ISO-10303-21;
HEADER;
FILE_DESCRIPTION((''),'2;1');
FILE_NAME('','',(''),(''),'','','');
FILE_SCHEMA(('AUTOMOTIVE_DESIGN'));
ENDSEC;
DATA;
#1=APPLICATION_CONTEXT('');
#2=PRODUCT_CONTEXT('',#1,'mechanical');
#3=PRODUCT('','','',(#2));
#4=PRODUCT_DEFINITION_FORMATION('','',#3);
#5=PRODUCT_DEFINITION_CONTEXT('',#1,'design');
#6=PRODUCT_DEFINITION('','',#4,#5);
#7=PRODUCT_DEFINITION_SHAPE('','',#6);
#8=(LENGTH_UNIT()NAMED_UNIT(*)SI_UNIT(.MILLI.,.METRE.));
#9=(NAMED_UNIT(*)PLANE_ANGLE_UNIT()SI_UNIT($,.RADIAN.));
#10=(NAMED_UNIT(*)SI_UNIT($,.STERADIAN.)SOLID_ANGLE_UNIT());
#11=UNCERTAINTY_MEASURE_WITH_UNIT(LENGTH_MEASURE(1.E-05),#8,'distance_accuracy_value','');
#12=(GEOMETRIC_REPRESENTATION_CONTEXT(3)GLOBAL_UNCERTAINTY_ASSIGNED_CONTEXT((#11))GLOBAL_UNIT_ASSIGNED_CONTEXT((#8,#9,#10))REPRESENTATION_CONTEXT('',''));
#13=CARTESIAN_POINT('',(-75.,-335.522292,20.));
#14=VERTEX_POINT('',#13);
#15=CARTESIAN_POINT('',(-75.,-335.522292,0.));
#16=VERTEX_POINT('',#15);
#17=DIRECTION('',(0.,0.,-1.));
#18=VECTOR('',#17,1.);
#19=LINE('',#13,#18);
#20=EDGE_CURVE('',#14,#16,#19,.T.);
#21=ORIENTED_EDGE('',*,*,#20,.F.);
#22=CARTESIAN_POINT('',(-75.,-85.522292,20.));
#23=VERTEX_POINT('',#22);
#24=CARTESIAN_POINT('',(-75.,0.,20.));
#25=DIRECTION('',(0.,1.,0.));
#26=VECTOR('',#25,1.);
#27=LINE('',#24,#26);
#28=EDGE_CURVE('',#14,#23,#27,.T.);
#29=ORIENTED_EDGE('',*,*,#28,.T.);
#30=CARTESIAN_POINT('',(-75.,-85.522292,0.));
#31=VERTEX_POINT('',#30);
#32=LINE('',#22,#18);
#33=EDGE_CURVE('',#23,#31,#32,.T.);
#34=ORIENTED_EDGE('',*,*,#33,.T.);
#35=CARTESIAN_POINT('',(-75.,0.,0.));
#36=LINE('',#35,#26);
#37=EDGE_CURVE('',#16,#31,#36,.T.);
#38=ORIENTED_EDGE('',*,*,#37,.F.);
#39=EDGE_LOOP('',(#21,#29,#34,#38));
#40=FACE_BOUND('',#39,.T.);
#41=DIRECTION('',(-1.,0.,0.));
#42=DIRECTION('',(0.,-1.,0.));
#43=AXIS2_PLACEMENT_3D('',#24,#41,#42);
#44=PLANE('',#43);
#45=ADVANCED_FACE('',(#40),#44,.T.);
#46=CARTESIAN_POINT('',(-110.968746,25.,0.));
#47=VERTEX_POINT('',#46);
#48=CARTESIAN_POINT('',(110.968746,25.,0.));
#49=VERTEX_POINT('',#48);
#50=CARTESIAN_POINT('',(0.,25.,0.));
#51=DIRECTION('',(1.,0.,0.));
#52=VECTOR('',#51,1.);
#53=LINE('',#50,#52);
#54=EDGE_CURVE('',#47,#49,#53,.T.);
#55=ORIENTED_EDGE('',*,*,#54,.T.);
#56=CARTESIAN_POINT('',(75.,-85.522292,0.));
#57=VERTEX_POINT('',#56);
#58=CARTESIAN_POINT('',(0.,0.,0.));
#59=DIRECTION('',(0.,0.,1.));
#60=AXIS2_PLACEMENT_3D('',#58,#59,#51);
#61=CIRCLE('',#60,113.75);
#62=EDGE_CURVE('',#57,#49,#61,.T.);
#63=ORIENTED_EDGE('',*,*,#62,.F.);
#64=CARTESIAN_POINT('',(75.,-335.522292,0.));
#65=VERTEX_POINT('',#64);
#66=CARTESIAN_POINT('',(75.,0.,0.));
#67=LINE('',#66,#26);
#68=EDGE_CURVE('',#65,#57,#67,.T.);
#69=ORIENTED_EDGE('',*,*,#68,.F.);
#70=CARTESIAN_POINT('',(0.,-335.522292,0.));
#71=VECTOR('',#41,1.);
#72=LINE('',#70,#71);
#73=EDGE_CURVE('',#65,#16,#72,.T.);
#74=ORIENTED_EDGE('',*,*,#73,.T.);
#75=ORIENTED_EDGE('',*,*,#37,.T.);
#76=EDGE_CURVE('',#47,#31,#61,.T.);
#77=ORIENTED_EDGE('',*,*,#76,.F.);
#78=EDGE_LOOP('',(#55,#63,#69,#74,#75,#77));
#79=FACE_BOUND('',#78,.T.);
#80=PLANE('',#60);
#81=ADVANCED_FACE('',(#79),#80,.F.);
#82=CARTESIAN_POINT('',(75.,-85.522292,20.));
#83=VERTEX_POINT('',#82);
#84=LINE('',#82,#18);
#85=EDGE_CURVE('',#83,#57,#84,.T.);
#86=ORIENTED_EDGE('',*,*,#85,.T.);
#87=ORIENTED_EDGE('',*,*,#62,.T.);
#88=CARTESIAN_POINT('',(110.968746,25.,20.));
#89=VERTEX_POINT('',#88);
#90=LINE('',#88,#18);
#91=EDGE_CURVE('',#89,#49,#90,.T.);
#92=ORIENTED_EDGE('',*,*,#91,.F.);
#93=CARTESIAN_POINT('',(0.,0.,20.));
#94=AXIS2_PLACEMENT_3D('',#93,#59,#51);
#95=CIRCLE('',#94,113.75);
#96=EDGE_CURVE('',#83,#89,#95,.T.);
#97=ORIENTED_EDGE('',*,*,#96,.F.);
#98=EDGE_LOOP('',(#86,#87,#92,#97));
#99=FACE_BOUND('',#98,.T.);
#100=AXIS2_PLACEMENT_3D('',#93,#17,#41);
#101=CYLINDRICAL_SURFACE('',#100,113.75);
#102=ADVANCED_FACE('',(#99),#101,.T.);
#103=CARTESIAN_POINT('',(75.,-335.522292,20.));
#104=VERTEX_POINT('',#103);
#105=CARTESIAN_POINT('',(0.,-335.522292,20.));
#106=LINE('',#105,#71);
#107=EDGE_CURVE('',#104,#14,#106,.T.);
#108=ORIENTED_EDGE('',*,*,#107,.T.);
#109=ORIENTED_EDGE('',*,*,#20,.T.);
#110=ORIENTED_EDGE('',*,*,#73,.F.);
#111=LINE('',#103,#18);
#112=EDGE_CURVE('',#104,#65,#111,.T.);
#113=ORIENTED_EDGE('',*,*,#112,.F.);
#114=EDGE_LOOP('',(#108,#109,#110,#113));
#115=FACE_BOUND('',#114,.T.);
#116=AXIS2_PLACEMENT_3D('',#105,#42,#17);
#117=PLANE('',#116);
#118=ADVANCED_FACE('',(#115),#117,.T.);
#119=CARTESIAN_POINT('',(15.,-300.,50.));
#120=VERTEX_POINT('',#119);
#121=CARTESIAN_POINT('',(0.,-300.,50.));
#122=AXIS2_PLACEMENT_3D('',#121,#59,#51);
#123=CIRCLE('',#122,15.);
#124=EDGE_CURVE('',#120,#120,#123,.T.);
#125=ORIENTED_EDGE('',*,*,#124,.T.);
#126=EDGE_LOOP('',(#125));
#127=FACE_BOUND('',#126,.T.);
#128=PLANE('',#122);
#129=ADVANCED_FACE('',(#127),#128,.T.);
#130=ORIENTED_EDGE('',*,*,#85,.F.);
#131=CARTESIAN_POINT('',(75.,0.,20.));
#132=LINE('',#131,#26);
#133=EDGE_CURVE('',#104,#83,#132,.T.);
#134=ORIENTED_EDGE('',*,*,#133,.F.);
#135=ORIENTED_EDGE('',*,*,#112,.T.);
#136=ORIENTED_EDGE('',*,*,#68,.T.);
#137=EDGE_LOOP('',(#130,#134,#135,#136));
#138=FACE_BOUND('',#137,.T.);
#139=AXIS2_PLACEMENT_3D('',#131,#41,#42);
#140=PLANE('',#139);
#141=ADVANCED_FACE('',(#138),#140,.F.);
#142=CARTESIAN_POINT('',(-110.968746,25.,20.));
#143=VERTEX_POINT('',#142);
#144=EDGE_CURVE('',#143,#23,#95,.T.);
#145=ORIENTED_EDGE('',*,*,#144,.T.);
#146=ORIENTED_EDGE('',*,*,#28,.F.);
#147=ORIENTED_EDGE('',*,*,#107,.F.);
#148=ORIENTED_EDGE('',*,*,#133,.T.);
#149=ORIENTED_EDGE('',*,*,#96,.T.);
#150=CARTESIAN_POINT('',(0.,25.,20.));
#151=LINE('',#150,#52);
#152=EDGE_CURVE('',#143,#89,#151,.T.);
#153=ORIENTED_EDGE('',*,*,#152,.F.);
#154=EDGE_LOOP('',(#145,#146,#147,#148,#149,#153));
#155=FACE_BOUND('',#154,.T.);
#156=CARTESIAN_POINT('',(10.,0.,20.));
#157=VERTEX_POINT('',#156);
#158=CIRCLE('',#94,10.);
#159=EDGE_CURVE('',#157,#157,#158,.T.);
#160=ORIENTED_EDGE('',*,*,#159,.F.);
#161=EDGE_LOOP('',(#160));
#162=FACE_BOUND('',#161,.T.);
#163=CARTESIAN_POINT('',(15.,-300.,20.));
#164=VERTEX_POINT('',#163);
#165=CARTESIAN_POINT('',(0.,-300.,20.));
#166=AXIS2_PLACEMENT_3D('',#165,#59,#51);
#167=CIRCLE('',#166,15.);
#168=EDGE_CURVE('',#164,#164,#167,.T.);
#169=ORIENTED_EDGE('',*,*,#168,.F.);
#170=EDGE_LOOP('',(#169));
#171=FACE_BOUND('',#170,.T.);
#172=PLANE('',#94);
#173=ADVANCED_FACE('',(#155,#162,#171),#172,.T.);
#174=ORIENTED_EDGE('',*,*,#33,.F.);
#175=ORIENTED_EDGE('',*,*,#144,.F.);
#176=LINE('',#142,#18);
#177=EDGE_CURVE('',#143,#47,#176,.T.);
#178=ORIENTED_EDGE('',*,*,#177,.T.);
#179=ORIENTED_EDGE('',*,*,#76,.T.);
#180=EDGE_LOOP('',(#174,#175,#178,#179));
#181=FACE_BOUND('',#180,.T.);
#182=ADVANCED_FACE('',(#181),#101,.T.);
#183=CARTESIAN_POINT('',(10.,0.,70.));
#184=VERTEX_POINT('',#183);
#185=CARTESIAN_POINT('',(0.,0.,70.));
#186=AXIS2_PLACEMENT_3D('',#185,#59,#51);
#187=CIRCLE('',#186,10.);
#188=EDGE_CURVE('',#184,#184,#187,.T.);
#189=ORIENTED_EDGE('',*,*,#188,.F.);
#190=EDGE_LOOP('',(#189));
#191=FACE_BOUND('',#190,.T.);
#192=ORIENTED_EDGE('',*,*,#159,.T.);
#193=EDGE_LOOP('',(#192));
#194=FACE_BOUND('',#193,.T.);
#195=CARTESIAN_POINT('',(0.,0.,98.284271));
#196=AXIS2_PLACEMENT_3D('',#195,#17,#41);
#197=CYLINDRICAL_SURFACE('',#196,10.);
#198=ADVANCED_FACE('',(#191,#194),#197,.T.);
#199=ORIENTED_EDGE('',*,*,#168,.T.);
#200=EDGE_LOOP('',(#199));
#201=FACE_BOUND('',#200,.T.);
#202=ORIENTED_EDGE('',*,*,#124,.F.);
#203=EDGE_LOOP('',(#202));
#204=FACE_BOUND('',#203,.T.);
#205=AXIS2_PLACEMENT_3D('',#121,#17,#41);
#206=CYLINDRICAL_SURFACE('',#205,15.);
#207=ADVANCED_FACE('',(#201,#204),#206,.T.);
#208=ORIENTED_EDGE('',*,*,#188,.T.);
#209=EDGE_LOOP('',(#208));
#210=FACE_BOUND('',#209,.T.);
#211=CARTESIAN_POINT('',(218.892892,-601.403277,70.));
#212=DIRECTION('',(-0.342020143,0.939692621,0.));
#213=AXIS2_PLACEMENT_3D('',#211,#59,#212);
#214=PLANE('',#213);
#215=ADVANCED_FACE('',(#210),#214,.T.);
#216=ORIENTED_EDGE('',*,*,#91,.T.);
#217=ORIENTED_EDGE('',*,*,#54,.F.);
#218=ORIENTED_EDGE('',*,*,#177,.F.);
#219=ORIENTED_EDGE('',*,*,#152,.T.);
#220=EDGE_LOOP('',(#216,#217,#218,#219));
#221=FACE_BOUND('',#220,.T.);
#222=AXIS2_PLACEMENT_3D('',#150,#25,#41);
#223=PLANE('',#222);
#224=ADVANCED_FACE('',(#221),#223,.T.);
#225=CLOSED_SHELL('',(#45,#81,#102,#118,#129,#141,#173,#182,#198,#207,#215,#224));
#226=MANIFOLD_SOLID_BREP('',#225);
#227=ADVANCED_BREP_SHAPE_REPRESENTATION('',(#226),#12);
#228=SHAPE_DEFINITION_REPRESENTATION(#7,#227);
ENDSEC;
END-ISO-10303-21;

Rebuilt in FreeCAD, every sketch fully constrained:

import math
import FreeCAD as App
import Part
import Sketcher

doc = App.newDocument("Part")
body = doc.addObject("PartDesign::Body", "Body")

# Sketch on XY plane
sketch1 = body.newObject("Sketcher::SketchObject", "Sketch")
sketch1.AttachmentSupport = (doc.getObject("XY_Plane"), [""])
sketch1.MapMode = "FlatFace"
sketch1.addGeometry([
    Part.LineSegment(App.Vector(-75, -336, 0), App.Vector(75, -336, 0)),  # 0
    Part.LineSegment(App.Vector(75, -336, 0), App.Vector(75, -86, 0)),  # 1
    Part.ArcOfCircle(Part.Circle(App.Vector(0, 0, 0), App.Vector(0, 0, 1), 114), math.radians(-49), math.radians(13)),  # 2
    Part.LineSegment(App.Vector(111, 25, 0), App.Vector(-111, 25, 0)),  # 3
    Part.ArcOfCircle(Part.Circle(App.Vector(0, 0, 0), App.Vector(0, 0, 1), 114), math.radians(167), math.radians(229)),  # 4
    Part.LineSegment(App.Vector(-75, -86, 0), App.Vector(-75, -336, 0)),  # 5
], False)
sketch1.addConstraint([
    Sketcher.Constraint("Coincident", 0, 2, 1, 1),
    Sketcher.Constraint("Coincident", 1, 2, 2, 1),
    Sketcher.Constraint("Coincident", 2, 2, 3, 1),
    Sketcher.Constraint("Coincident", 3, 2, 4, 1),
    Sketcher.Constraint("Coincident", 4, 2, 5, 1),
    Sketcher.Constraint("Coincident", 5, 2, 0, 1),
    Sketcher.Constraint("Horizontal", 0),
    Sketcher.Constraint("Vertical", 1),
    Sketcher.Constraint("Horizontal", 3),
    Sketcher.Constraint("Vertical", 5),
    Sketcher.Constraint("Coincident", 2, 3, -1, 1),
    Sketcher.Constraint("Coincident", 4, 3, -1, 1),
    Sketcher.Constraint("Equal", 2, 4),
    Sketcher.Constraint("Horizontal", 1, 2, 4, 2),
    Sketcher.Constraint("DistanceX", 0, 1, 0, 2, 150.0),
    Sketcher.Constraint("DistanceY", 1, 1, 1, 2, 250.0),
    Sketcher.Constraint("Radius", 2, 113.75),
    Sketcher.Constraint("DistanceY", -1, 1, 2, 2, 25.0),
])
pad1 = body.newObject("PartDesign::Pad", "Pad")
pad1.Profile = sketch1
pad1.Length = 20

# Sketch on XY plane
sketch2 = body.newObject("Sketcher::SketchObject", "Sketch001")
sketch2.AttachmentSupport = (doc.getObject("XY_Plane"), [""])
sketch2.MapMode = "FlatFace"
sketch2.AttachmentOffset = App.Placement(App.Vector(0, 0, 20), App.Rotation())
sketch2.addGeometry(Part.Circle(App.Vector(0, 0, 0), App.Vector(0, 0, 1), 10), False)
sketch2.addConstraint([
    Sketcher.Constraint("Coincident", 0, 3, -1, 1),
    Sketcher.Constraint("Diameter", 0, 20.0),
])
pad2 = body.newObject("PartDesign::Pad", "Pad001")
pad2.Profile = sketch2
pad2.Length = 50

# Sketch on XY plane
sketch3 = body.newObject("Sketcher::SketchObject", "Sketch002")
sketch3.AttachmentSupport = (doc.getObject("XY_Plane"), [""])
sketch3.MapMode = "FlatFace"
sketch3.AttachmentOffset = App.Placement(App.Vector(0, 0, 20), App.Rotation())
sketch3.addGeometry(Part.Circle(App.Vector(0, -300, 0), App.Vector(0, 0, 1), 15), False)
sketch3.addConstraint([
    Sketcher.Constraint("PointOnObject", 0, 3, -2),
    Sketcher.Constraint("Diameter", 0, 30.0),
    Sketcher.Constraint("DistanceY", 0, 3, -1, 1, 300.0),
])
pad3 = body.newObject("PartDesign::Pad", "Pad002")
pad3.Profile = sketch3
pad3.Length = 30

doc.recompute()
